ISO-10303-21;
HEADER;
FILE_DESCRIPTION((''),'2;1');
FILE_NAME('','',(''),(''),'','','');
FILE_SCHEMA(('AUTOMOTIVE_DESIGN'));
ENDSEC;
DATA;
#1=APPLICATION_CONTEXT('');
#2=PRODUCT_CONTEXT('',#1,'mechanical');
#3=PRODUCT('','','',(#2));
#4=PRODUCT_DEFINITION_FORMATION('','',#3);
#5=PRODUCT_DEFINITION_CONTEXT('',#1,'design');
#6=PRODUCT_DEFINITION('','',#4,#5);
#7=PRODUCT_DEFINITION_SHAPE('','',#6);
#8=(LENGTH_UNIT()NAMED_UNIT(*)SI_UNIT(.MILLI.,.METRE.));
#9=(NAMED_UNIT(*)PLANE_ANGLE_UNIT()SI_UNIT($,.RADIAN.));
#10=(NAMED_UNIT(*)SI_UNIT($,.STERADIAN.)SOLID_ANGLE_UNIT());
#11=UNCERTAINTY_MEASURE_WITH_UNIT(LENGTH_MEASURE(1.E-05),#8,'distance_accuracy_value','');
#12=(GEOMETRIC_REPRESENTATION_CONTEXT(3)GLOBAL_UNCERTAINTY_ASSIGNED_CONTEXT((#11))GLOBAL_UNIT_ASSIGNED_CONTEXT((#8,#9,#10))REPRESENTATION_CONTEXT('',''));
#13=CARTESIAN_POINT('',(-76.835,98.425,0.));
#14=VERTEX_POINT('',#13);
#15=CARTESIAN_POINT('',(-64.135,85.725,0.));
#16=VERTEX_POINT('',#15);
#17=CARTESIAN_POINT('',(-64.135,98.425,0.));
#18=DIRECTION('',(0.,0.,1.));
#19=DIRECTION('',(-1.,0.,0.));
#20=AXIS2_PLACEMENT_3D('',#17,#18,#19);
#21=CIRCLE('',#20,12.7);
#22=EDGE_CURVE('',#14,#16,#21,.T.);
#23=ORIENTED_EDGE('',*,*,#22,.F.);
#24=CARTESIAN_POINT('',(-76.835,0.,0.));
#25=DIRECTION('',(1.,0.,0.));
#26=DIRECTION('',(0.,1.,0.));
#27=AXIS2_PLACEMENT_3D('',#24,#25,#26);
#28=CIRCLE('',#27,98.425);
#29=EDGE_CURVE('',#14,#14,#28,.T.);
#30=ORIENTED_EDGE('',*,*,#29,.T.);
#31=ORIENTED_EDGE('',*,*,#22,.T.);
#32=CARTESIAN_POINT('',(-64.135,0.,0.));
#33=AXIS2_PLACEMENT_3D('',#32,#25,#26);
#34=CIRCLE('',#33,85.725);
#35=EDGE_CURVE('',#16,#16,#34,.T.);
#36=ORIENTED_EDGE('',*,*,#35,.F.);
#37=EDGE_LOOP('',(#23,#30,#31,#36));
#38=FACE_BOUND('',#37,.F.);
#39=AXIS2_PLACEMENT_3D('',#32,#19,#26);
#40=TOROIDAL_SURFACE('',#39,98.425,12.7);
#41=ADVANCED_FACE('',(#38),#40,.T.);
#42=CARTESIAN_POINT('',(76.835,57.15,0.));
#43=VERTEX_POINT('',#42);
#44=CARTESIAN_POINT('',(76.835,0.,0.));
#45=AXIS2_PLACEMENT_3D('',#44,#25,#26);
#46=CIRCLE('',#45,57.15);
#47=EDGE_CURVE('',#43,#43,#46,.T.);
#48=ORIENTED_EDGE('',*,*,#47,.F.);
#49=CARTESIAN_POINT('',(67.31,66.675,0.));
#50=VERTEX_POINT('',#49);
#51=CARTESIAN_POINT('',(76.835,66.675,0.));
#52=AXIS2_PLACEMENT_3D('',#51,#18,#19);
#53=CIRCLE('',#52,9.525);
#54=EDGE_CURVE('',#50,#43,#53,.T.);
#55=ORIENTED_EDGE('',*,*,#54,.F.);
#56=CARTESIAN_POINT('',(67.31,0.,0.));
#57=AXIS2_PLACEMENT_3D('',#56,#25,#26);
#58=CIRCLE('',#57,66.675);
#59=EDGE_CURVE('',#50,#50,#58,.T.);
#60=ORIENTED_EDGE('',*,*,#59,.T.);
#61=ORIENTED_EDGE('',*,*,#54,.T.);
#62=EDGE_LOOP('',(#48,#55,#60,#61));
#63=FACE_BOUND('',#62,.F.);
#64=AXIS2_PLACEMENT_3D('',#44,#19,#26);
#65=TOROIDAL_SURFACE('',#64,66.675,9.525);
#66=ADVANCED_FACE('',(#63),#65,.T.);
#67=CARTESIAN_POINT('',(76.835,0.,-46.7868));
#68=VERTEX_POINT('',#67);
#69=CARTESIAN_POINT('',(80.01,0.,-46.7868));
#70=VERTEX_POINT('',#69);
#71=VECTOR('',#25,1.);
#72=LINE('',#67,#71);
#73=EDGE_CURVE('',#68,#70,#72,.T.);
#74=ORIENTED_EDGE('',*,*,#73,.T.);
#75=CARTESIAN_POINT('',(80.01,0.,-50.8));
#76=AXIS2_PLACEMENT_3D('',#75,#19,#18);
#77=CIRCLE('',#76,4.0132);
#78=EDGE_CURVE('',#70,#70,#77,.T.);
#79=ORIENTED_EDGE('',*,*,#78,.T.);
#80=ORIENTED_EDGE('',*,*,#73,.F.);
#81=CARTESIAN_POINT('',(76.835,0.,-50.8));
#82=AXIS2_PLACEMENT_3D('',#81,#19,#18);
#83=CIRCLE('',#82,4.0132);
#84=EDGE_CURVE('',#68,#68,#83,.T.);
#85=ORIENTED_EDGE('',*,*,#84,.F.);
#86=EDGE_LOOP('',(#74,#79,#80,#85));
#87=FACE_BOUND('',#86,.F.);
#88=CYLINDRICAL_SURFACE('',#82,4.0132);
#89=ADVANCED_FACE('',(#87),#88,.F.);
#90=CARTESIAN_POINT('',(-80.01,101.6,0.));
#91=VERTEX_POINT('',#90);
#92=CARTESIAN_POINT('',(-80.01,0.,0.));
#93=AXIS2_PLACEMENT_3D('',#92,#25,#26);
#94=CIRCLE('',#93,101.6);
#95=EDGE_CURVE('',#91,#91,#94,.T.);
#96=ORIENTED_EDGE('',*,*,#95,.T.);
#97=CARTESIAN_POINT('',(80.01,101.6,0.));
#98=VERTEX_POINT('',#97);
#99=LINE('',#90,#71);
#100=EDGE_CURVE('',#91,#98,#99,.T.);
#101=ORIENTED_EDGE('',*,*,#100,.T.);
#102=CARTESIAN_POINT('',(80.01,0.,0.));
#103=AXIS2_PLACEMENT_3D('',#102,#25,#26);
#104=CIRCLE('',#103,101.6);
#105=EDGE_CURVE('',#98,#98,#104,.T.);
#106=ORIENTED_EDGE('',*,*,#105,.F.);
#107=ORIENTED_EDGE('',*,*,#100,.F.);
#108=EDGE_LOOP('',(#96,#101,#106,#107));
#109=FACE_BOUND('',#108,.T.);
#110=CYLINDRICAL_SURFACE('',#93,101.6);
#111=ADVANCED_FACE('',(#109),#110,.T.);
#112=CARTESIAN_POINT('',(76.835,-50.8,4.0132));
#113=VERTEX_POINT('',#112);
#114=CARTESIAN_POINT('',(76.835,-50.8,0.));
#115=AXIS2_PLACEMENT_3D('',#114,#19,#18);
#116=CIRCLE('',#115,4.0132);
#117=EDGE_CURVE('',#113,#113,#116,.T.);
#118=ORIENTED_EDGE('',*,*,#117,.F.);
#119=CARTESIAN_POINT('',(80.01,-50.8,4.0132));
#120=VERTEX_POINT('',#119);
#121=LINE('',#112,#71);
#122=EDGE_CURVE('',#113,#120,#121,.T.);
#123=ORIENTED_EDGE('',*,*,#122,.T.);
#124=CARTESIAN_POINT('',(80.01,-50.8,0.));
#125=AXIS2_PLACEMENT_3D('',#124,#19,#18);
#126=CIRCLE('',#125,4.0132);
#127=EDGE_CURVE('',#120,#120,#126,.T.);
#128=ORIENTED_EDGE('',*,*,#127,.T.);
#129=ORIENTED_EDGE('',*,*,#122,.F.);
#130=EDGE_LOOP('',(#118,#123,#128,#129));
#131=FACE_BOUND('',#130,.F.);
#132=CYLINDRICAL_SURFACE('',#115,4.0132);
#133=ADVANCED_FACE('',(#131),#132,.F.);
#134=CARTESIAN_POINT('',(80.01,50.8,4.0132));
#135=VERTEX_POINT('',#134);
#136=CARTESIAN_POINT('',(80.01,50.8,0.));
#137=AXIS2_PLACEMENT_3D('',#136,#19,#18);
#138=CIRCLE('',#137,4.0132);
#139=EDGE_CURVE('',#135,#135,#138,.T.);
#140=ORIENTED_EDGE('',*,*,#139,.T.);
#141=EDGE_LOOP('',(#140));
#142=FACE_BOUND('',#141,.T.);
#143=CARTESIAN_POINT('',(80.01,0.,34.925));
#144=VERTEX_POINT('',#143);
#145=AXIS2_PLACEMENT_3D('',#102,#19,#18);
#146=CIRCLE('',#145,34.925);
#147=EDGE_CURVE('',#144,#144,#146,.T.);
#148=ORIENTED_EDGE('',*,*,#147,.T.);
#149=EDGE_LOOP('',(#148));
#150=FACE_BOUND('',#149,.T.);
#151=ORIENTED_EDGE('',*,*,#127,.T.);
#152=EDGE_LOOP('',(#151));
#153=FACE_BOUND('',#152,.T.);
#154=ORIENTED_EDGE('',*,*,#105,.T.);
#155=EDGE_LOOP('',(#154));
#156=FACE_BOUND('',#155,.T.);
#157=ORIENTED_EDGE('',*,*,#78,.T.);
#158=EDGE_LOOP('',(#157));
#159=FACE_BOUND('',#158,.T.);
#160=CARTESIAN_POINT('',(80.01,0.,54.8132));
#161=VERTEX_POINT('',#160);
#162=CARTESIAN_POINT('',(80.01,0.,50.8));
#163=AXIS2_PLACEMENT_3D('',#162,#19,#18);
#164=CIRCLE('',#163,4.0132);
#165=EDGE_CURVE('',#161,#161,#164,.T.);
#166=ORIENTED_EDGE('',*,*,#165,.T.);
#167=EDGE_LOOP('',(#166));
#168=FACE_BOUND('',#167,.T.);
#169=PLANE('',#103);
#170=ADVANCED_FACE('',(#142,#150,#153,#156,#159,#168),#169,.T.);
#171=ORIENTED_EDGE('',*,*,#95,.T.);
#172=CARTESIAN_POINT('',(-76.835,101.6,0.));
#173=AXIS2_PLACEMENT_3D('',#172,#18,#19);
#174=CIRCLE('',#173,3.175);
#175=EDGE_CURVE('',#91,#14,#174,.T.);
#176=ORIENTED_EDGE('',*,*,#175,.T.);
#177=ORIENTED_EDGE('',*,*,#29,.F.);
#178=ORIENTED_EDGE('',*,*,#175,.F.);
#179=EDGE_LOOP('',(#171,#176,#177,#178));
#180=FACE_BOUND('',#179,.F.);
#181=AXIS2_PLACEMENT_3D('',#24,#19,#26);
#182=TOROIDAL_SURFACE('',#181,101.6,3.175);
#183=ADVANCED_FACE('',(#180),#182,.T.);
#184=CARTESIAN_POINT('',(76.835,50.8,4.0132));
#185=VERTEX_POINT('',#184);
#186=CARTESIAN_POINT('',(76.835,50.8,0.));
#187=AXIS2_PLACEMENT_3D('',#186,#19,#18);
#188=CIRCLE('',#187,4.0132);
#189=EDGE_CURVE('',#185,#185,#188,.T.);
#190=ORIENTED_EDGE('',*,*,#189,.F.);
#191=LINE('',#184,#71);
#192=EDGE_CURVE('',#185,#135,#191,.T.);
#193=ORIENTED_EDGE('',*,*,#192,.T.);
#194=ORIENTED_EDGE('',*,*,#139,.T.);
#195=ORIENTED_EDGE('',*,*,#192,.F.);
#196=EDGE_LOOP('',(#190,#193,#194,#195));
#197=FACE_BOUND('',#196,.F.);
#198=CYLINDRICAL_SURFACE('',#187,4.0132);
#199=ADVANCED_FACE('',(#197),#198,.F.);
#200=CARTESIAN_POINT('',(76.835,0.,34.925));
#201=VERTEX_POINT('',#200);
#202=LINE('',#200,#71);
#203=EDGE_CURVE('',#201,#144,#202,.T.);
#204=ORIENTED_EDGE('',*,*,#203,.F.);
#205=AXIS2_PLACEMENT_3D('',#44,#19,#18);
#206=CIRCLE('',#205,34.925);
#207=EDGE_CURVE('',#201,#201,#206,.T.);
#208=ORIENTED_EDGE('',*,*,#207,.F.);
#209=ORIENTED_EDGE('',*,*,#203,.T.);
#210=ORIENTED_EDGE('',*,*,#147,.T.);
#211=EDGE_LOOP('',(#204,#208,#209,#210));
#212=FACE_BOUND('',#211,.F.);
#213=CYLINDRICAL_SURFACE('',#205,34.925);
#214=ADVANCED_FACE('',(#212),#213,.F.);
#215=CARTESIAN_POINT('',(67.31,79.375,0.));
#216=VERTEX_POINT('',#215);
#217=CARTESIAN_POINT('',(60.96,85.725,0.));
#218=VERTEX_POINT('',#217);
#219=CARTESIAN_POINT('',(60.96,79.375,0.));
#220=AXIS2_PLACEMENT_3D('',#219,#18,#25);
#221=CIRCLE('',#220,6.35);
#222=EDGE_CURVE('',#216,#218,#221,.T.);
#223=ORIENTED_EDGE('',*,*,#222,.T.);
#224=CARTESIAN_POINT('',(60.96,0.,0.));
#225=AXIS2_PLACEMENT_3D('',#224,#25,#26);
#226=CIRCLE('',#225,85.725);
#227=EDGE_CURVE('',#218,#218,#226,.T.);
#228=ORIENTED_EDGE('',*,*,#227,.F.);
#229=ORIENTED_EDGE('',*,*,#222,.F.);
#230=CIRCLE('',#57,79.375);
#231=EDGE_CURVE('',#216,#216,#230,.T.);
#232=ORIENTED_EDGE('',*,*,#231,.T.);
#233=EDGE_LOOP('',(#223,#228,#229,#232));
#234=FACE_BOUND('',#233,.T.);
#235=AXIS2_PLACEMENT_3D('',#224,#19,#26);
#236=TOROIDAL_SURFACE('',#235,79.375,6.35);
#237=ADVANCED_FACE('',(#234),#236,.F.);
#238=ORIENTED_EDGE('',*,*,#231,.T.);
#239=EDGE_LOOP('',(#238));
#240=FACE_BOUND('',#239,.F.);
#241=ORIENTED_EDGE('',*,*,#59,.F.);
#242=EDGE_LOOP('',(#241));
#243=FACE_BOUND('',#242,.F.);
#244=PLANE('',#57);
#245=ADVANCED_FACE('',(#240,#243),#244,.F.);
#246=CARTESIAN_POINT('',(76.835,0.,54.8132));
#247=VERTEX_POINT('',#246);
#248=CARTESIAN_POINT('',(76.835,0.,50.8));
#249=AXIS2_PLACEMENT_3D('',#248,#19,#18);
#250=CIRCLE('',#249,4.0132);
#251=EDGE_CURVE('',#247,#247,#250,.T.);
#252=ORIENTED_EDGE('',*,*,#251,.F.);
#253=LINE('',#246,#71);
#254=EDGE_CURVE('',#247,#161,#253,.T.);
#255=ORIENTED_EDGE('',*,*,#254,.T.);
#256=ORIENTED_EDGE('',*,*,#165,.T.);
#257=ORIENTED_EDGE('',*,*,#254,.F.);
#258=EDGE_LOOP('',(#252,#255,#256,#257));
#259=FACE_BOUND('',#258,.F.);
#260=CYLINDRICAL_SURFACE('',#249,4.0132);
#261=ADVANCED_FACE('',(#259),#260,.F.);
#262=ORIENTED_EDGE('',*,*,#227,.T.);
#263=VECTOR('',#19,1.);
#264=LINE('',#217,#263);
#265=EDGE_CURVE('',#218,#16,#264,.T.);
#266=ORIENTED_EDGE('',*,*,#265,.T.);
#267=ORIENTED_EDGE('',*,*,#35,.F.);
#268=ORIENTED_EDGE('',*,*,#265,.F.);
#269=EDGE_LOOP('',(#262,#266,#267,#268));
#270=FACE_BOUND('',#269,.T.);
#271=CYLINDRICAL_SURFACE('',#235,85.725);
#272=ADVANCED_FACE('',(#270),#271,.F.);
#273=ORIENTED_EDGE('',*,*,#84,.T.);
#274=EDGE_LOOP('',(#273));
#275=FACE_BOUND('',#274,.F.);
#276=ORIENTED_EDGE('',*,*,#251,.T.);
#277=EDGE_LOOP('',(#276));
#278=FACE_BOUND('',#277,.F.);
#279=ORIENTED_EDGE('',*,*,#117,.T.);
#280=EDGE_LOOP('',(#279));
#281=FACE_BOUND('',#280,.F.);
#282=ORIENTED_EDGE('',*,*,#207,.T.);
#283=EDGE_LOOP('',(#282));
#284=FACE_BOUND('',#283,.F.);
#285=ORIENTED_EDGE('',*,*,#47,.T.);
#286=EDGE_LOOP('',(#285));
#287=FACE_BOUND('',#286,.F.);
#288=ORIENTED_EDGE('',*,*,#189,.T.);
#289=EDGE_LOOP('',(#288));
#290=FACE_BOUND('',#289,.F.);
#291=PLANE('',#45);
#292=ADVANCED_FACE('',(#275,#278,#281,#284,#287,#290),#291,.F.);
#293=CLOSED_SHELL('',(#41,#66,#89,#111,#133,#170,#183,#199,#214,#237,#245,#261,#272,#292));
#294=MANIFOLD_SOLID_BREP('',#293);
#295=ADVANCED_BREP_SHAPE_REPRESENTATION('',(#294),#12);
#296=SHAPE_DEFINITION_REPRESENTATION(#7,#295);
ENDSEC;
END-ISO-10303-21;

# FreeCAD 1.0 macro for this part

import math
import FreeCAD as App
import Part
import Sketcher

V = App.Vector
Q = App.Units.Quantity

doc = App.newDocument("Part")
body = doc.addObject("PartDesign::Body", "Body")

# Sketch on XY plane
sketch1 = doc.addObject("Sketcher::SketchObject", "Sketch")
body.addObject(sketch1)
sketch1.AttachmentSupport = (doc.XY_Plane, [""])
sketch1.MapMode = "FlatFace"
sketch1.addGeometry(Part.LineSegment(V(76.8, 57.1, 0), V(76.8, 0, 0)), False)
sketch1.addGeometry(Part.LineSegment(V(76.8, 0, 0), V(80, 0, 0)), False)
sketch1.addGeometry(Part.LineSegment(V(80, 0, 0), V(80, 101.6, 0)), False)
sketch1.addGeometry(Part.LineSegment(V(80, 101.6, 0), V(-80, 101.6, 0)), False)
sketch1.addGeometry(Part.ArcOfCircle(Part.Circle(V(-76.8, 101.6, 0), V(0, 0, 1), 3.2), math.radians(180), math.radians(270)), False)
sketch1.addGeometry(Part.ArcOfCircle(Part.Circle(V(-64.1, 98.4, 0), V(0, 0, 1), 12.7), math.radians(180), math.radians(270)), False)
sketch1.addGeometry(Part.LineSegment(V(-64.1, 85.7, 0), V(61, 85.7, 0)), False)
sketch1.addGeometry(Part.ArcOfCircle(Part.Circle(V(61, 79.4, 0), V(0, 0, 1), 6.4), math.radians(0), math.radians(90)), False)
sketch1.addGeometry(Part.LineSegment(V(67.3, 79.4, 0), V(67.3, 66.7, 0)), False)
sketch1.addGeometry(Part.ArcOfCircle(Part.Circle(V(76.8, 66.7, 0), V(0, 0, 1), 9.5), math.radians(180), math.radians(270)), False)
sketch1.addConstraint(Sketcher.Constraint("Coincident", 0, 2, 1, 1))
sketch1.addConstraint(Sketcher.Constraint("Coincident", 1, 2, 2, 1))
sketch1.addConstraint(Sketcher.Constraint("Coincident", 2, 2, 3, 1))
sketch1.addConstraint(Sketcher.Constraint("Coincident", 3, 2, 4, 1))
sketch1.addConstraint(Sketcher.Constraint("Coincident", 4, 2, 5, 1))
sketch1.addConstraint(Sketcher.Constraint("Tangent", 5, 2, 6, 1))
sketch1.addConstraint(Sketcher.Constraint("Tangent", 6, 2, 7, 2))
sketch1.addConstraint(Sketcher.Constraint("Tangent", 7, 1, 8, 1))
sketch1.addConstraint(Sketcher.Constraint("Tangent", 8, 2, 9, 1))
sketch1.addConstraint(Sketcher.Constraint("Coincident", 9, 2, 0, 1))
sketch1.addConstraint(Sketcher.Constraint("Vertical", 0))
sketch1.addConstraint(Sketcher.Constraint("Horizontal", 1))
sketch1.addConstraint(Sketcher.Constraint("Vertical", 2))
sketch1.addConstraint(Sketcher.Constraint("Horizontal", 3))
sketch1.addConstraint(Sketcher.Constraint("Horizontal", 6))
sketch1.addConstraint(Sketcher.Constraint("Vertical", 8))
sketch1.addConstraint(Sketcher.Constraint("PointOnObject", 0, 2, -1))
sketch1.addConstraint(Sketcher.Constraint("Horizontal", 4, 3, 2, 2))
sketch1.addConstraint(Sketcher.Constraint("Horizontal", 5, 3, 4, 2))
sketch1.addConstraint(Sketcher.Constraint("Vertical", 9, 3, 0, 2))
sketch1.addConstraint(Sketcher.Constraint("Radius", 5, Q("0.5 in")))
sketch1.addConstraint(Sketcher.Constraint("DistanceY", 2, 1, 2, 2, Q("4 in")))
sketch1.addConstraint(Sketcher.Constraint("Radius", 7, Q("0.25 in")))
sketch1.addConstraint(Sketcher.Constraint("DistanceX", 3, 2, 3, 1, Q("6.3 in")))
sketch1.addConstraint(Sketcher.Constraint("DistanceY", 8, 2, 8, 1, Q("0.5 in")))
sketch1.addConstraint(Sketcher.Constraint("Radius", 4, Q("0.125 in")))
sketch1.addConstraint(Sketcher.Constraint("Radius", 9, Q("0.375 in")))
sketch1.addConstraint(Sketcher.Constraint("DistanceX", 4, 3, 5, 3, Q("0.5 in")))
sketch1.addConstraint(Sketcher.Constraint("DistanceX", 7, 1, 2, 2, Q("0.5 in")))
sketch1.addConstraint(Sketcher.Constraint("DistanceX", -1, 1, 7, 3, Q("2.4 in")))
revolution = doc.addObject("PartDesign::Revolution", "Revolution")
body.addObject(revolution)
revolution.Profile = sketch1
revolution.ReferenceAxis = (sketch1, ["H_Axis"])
revolution.Angle = 360

# Sketch on YZ plane
sketch2 = doc.addObject("Sketcher::SketchObject", "Sketch001")
body.addObject(sketch2)
sketch2.AttachmentSupport = (doc.YZ_Plane, [""])
sketch2.MapMode = "FlatFace"
sketch2.AttachmentOffset = App.Placement(V(0, 0, 3.025 * 25.4), App.Rotation())
sketch2.addGeometry(Part.Circle(V(0, 0, 0), V(0, 0, 1), 34.9), False)
sketch2.addGeometry(Part.Circle(V(50.8, 0, 0), V(0, 0, 1), 4), False)
sketch2.addGeometry(Part.Circle(V(0, -50.8, 0), V(0, 0, 1), 4), False)
sketch2.addGeometry(Part.Circle(V(-50.8, 0, 0), V(0, 0, 1), 4), False)
sketch2.addGeometry(Part.Circle(V(0, 50.8, 0), V(0, 0, 1), 4), False)
sketch2.addConstraint(Sketcher.Constraint("Coincident", 0, 3, -1, 1))
sketch2.addConstraint(Sketcher.Constraint("Equal", 1, 2))
sketch2.addConstraint(Sketcher.Constraint("Equal", 2, 3))
sketch2.addConstraint(Sketcher.Constraint("Equal", 3, 4))
sketch2.addConstraint(Sketcher.Constraint("Symmetric", 1, 3, 3, 3, -1, 1))
sketch2.addConstraint(Sketcher.Constraint("Symmetric", 2, 3, 4, 3, -1, 1))
sketch2.addConstraint(Sketcher.Constraint("PointOnObject", 1, 3, -1))
sketch2.addConstraint(Sketcher.Constraint("PointOnObject", 2, 3, -2))
sketch2.addConstraint(Sketcher.Constraint("Diameter", 0, Q("2.75 in")))
sketch2.addConstraint(Sketcher.Constraint("Diameter", 1, Q("0.316 in")))
sketch2.addConstraint(Sketcher.Constraint("DistanceX", 3, 3, 1, 3, Q("4 in")))
sketch2.addConstraint(Sketcher.Constraint("DistanceY", 2, 3, 4, 3, Q("4 in")))
pocket1 = doc.addObject("PartDesign::Pocket", "Pocket")
body.addObject(pocket1)
pocket1.Profile = sketch2
pocket1.Type = "ThroughAll"
pocket1.Reversed = True

doc.recompute()
